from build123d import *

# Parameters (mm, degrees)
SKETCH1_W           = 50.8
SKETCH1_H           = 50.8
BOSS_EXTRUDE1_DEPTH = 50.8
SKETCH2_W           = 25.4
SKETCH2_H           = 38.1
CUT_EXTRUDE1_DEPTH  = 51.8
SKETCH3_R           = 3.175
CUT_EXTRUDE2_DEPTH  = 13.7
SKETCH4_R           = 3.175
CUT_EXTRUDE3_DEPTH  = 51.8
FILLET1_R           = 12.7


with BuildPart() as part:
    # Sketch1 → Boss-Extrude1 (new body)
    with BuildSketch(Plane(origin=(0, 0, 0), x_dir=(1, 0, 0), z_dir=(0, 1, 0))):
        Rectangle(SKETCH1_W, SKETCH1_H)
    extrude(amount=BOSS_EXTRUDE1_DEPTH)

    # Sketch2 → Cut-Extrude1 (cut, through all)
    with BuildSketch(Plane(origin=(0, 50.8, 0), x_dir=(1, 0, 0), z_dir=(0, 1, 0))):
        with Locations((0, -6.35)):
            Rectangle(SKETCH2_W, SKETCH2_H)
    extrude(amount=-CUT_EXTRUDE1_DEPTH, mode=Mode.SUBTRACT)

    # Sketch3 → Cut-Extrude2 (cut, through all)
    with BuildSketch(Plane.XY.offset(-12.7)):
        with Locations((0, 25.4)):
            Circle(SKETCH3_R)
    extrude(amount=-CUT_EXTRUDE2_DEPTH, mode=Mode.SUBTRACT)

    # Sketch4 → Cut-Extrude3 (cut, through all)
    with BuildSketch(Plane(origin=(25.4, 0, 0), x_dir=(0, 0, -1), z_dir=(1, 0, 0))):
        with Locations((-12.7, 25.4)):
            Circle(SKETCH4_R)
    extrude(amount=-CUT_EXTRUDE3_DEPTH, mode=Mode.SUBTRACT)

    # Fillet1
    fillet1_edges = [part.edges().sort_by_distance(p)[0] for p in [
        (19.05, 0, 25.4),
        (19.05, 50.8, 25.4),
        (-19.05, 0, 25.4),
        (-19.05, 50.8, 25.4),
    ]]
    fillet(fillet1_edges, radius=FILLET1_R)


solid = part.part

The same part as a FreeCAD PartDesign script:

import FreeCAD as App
import Part
import Sketcher
Q = App.Units.Quantity


def edges_at(feature, points):
    """Names of the edges that pass closest to the given points."""
    edges = feature.Shape.Edges
    near = lambda p: min(range(len(edges)), key=lambda i: edges[i].distToShape(Part.Vertex(*p))[0])
    return sorted({f"Edge{near(p) + 1}" for p in points})

doc = App.newDocument("Part")
body = doc.addObject("PartDesign::Body", "Body")

# Sketch on XZ plane
sketch1 = body.newObject("Sketcher::SketchObject", "Sketch")
sketch1.AttachmentSupport = (doc.getObject("XZ_Plane"), [""])
sketch1.MapMode = "FlatFace"
sketch1.addGeometry(Part.LineSegment(App.Vector(-25.4, -25.4, 0), App.Vector(-25.4, 25.4, 0)), False)
sketch1.addGeometry(Part.LineSegment(App.Vector(-25.4, 25.4, 0), App.Vector(25.4, 25.4, 0)), False)
sketch1.addGeometry(Part.LineSegment(App.Vector(25.4, 25.4, 0), App.Vector(25.4, -25.4, 0)), False)
sketch1.addGeometry(Part.LineSegment(App.Vector(25.4, -25.4, 0), App.Vector(-25.4, -25.4, 0)), False)
sketch1.addConstraint(Sketcher.Constraint("Coincident", 0, 2, 1, 1))
sketch1.addConstraint(Sketcher.Constraint("Coincident", 1, 2, 2, 1))
sketch1.addConstraint(Sketcher.Constraint("Coincident", 2, 2, 3, 1))
sketch1.addConstraint(Sketcher.Constraint("Coincident", 3, 2, 0, 1))
sketch1.addConstraint(Sketcher.Constraint("Vertical", 0))
sketch1.addConstraint(Sketcher.Constraint("Horizontal", 1))
sketch1.addConstraint(Sketcher.Constraint("Vertical", 2))
sketch1.addConstraint(Sketcher.Constraint("Horizontal", 3))
sketch1.addConstraint(Sketcher.Constraint("Symmetric", 0, 2, 2, 2, -1, 1))
sketch1.addConstraint(Sketcher.Constraint("Equal", 3, 0))
sketch1.addConstraint(Sketcher.Constraint("DistanceX", 1, 1, 1, 2, Q("2 in")))
pad1 = body.newObject("PartDesign::Pad", "Pad")
pad1.Profile = sketch1
pad1.Length = Q("2 in")
pad1.Reversed = True

# Sketch on XZ plane
sketch2 = body.newObject("Sketcher::SketchObject", "Sketch001")
sketch2.AttachmentSupport = (doc.getObject("XZ_Plane"), [""])
sketch2.MapMode = "FlatFace"
sketch2.AttachmentOffset = App.Placement(App.Vector(0, 0, -2 * 25.4), App.Rotation())
sketch2.addGeometry(Part.LineSegment(App.Vector(-12.7, -12.7, 0), App.Vector(-12.7, 25.4, 0)), False)
sketch2.addGeometry(Part.LineSegment(App.Vector(-12.7, 25.4, 0), App.Vector(12.7, 25.4, 0)), False)
sketch2.addGeometry(Part.LineSegment(App.Vector(12.7, 25.4, 0), App.Vector(12.7, -12.7, 0)), False)
sketch2.addGeometry(Part.LineSegment(App.Vector(12.7, -12.7, 0), App.Vector(-12.7, -12.7, 0)), False)
sketch2.addConstraint(Sketcher.Constraint("Coincident", 0, 2, 1, 1))
sketch2.addConstraint(Sketcher.Constraint("Coincident", 1, 2, 2, 1))
sketch2.addConstraint(Sketcher.Constraint("Coincident", 2, 2, 3, 1))
sketch2.addConstraint(Sketcher.Constraint("Coincident", 3, 2, 0, 1))
sketch2.addConstraint(Sketcher.Constraint("Vertical", 0))
sketch2.addConstraint(Sketcher.Constraint("Horizontal", 1))
sketch2.addConstraint(Sketcher.Constraint("Vertical", 2))
sketch2.addConstraint(Sketcher.Constraint("Horizontal", 3))
sketch2.addConstraint(Sketcher.Constraint("DistanceX", 1, 1, 1, 2, Q("1 in")))
sketch2.addConstraint(Sketcher.Constraint("DistanceY", 0, 1, 0, 2, Q("1.5 in")))
sketch2.addConstraint(Sketcher.Constraint("DistanceY", -1, 1, 0, 2, Q("1 in")))
sketch2.addConstraint(Sketcher.Constraint("DistanceX", 0, 2, -1, 1, Q("0.5 in")))
pocket1 = body.newObject("PartDesign::Pocket", "Pocket")
pocket1.Profile = sketch2
pocket1.Type = "ThroughAll"
pocket1.Reversed = True

# Sketch on XY plane
sketch3 = body.newObject("Sketcher::SketchObject", "Sketch002")
sketch3.AttachmentSupport = (doc.getObject("XY_Plane"), [""])
sketch3.MapMode = "FlatFace"
sketch3.AttachmentOffset = App.Placement(App.Vector(0, 0, -0.5 * 25.4), App.Rotation())
sketch3.addGeometry(Part.Circle(App.Vector(0, 25.4, 0), App.Vector(0, 0, 1), 3.175), False)
sketch3.addConstraint(Sketcher.Constraint("PointOnObject", 0, 3, -2))
sketch3.addConstraint(Sketcher.Constraint("Diameter", 0, Q("0.25 in")))
sketch3.addConstraint(Sketcher.Constraint("DistanceY", -1, 1, 0, 3, Q("1 in")))
pocket2 = body.newObject("PartDesign::Pocket", "Pocket001")
pocket2.Profile = sketch3
pocket2.Type = "ThroughAll"

# Sketch on YZ plane
sketch4 = body.newObject("Sketcher::SketchObject", "Sketch003")
sketch4.AttachmentSupport = (doc.getObject("YZ_Plane"), [""])
sketch4.MapMode = "FlatFace"
sketch4.AttachmentOffset = App.Placement(App.Vector(0, 0, 1 * 25.4), App.Rotation())
sketch4.addGeometry(Part.Circle(App.Vector(25.4, 12.7, 0), App.Vector(0, 0, 1), 3.175), False)
sketch4.addConstraint(Sketcher.Constraint("Diameter", 0, Q("0.25 in")))
sketch4.addConstraint(Sketcher.Constraint("DistanceX", -1, 1, 0, 3, Q("1 in")))
sketch4.addConstraint(Sketcher.Constraint("DistanceY", -1, 1, 0, 3, Q("0.5 in")))
pocket3 = body.newObject("PartDesign::Pocket", "Pocket002")
pocket3.Profile = sketch4
pocket3.Type = "ThroughAll"
doc.recompute()

fillet = body.newObject("PartDesign::Fillet", "Fillet")
fillet.Base = (pocket3, edges_at(pocket3, [
    (19.05, 0, 25.4),
    (19.05, 50.8, 25.4),
    (-19.05, 0, 25.4),
    (-19.05, 50.8, 25.4),
]))
fillet.Radius = Q("0.5 in")

doc.recompute()
